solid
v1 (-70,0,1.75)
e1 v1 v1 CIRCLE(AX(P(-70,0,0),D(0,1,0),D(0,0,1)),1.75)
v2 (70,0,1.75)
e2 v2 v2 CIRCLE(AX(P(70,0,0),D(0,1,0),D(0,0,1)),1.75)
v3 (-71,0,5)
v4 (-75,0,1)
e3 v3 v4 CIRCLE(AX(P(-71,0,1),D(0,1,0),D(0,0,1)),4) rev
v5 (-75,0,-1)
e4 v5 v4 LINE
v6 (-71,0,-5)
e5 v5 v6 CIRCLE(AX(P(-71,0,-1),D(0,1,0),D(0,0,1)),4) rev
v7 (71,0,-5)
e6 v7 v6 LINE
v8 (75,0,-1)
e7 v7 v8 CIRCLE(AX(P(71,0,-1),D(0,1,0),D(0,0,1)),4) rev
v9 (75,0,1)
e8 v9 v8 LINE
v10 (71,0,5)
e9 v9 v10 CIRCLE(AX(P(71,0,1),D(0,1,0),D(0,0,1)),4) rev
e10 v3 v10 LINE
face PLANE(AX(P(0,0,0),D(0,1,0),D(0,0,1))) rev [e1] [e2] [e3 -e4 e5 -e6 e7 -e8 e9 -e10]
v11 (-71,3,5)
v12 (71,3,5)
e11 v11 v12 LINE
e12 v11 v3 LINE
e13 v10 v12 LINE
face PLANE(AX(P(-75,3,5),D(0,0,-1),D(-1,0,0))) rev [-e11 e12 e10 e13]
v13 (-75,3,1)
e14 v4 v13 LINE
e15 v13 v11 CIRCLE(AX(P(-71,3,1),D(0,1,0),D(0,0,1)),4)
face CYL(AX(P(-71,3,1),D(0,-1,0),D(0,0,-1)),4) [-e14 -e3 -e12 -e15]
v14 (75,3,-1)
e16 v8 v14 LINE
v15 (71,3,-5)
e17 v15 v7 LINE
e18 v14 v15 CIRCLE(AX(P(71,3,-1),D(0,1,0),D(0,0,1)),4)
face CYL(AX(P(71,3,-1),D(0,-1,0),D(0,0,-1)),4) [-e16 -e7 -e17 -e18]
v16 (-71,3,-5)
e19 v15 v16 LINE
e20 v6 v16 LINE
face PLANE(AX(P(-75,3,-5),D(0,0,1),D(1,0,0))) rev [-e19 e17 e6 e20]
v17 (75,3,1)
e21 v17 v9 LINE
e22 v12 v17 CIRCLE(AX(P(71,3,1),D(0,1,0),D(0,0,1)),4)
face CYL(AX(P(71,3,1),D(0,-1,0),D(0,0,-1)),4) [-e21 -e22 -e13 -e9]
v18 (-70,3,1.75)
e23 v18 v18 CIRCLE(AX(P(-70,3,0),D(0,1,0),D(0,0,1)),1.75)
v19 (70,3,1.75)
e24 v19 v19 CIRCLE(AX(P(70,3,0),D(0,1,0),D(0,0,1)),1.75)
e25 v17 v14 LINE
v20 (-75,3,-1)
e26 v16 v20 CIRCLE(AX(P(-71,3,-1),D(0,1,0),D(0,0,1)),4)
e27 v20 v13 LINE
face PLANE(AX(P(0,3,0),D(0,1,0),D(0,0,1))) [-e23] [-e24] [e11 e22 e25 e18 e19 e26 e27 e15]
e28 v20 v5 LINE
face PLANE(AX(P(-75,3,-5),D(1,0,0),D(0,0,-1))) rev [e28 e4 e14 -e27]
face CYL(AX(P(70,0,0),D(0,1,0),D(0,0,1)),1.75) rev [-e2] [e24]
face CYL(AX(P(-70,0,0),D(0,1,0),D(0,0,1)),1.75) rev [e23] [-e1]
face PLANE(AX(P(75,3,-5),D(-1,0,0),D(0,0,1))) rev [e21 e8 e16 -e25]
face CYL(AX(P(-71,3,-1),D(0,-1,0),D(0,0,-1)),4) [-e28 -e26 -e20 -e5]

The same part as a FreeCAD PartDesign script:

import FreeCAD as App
import Part
import Sketcher

V = App.Vector


def edges_at(feature, points):
    """Names of the edges that pass closest to the given points."""
    edges = feature.Shape.Edges
    near = lambda p: min(range(len(edges)), key=lambda i: edges[i].distToShape(Part.Vertex(*p))[0])
    return sorted({f"Edge{near(p) + 1}" for p in points})

doc = App.newDocument("Part")
body = doc.addObject("PartDesign::Body", "Body")

sketch1 = body.newObject("Sketcher::SketchObject", "Sketch")
sketch1.AttachmentSupport = (doc.getObject("XZ_Plane"), [""])
sketch1.MapMode = "FlatFace"
sketch1.addGeometry(Part.LineSegment(V(-75, -5, 0), V(-75, 5, 0)), False)
sketch1.addGeometry(Part.LineSegment(V(-75, 5, 0), V(75, 5, 0)), False)
sketch1.addGeometry(Part.LineSegment(V(75, 5, 0), V(75, -5, 0)), False)
sketch1.addGeometry(Part.LineSegment(V(75, -5, 0), V(-75, -5, 0)), False)
sketch1.addConstraint(Sketcher.Constraint("Coincident", 0, 2, 1, 1))
sketch1.addConstraint(Sketcher.Constraint("Coincident", 1, 2, 2, 1))
sketch1.addConstraint(Sketcher.Constraint("Coincident", 2, 2, 3, 1))
sketch1.addConstraint(Sketcher.Constraint("Coincident", 3, 2, 0, 1))
sketch1.addConstraint(Sketcher.Constraint("Vertical", 0))
sketch1.addConstraint(Sketcher.Constraint("Horizontal", 1))
sketch1.addConstraint(Sketcher.Constraint("Vertical", 2))
sketch1.addConstraint(Sketcher.Constraint("Horizontal", 3))
sketch1.addConstraint(Sketcher.Constraint("Symmetric", 0, 2, 2, 2, -1, 1))
sketch1.addConstraint(Sketcher.Constraint("DistanceX", 1, 1, 1, 2, 150.0))
sketch1.addConstraint(Sketcher.Constraint("DistanceY", 0, 1, 0, 2, 10.0))
pad1 = body.newObject("PartDesign::Pad", "Pad")
pad1.Profile = sketch1
pad1.Length = 3
pad1.Reversed = True
doc.recompute()

fillet = body.newObject("PartDesign::Fillet", "Fillet")
fillet.Base = (pad1, edges_at(pad1, [
    (75, 1.5, 5),
    (-75, 1.5, 5),
    (-75, 1.5, -5),
    (75, 1.5, -5),
]))
fillet.Radius = 4

sketch2 = body.newObject("Sketcher::SketchObject", "Sketch001")
sketch2.AttachmentSupport = (doc.getObject("XZ_Plane"), [""])
sketch2.MapMode = "FlatFace"
sketch2.AttachmentOffset = App.Placement(V(0, 0, -3), App.Rotation())
sketch2.addGeometry(Part.Circle(V(-70, 0, 0), V(0, 0, 1), 1.8), False)
sketch2.addGeometry(Part.Circle(V(70, 0, 0), V(0, 0, 1), 1.8), False)
sketch2.addConstraint(Sketcher.Constraint("Equal", 0, 1))
sketch2.addConstraint(Sketcher.Constraint("Symmetric", 0, 3, 1, 3, -1, 1))
sketch2.addConstraint(Sketcher.Constraint("PointOnObject", 0, 3, -1))
sketch2.addConstraint(Sketcher.Constraint("Diameter", 0, 3.5))
sketch2.addConstraint(Sketcher.Constraint("DistanceX", 0, 3, -1, 1, 70.0))
pocket1 = body.newObject("PartDesign::Pocket", "Pocket")
pocket1.Profile = sketch2
pocket1.Type = "ThroughAll"
pocket1.Reversed = True

doc.recompute()
